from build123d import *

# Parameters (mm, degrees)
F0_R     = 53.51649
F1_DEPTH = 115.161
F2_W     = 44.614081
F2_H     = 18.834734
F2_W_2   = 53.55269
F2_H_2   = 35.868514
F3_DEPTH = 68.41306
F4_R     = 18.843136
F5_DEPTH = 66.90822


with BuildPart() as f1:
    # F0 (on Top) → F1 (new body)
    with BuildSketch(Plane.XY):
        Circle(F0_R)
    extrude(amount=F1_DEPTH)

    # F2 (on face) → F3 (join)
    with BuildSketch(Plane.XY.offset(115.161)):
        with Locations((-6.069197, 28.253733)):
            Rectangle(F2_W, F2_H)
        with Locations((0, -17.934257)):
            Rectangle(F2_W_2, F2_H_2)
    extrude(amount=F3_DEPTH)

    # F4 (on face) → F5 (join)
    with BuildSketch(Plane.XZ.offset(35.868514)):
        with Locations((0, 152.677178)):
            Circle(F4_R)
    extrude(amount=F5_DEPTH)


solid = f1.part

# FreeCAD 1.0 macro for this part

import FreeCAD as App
import Part
import Sketcher

V = App.Vector
Q = App.Units.Quantity


def add_polygon(sketch, points):
    """Adds a closed chain of lines whose ends are joined by coincident constraints."""
    first, n = sketch.GeometryCount, len(points)
    for a, b in zip(points, points[1:] + points[:1]):
        sketch.addGeometry(Part.LineSegment(App.Vector(*a, 0), App.Vector(*b, 0)), False)
    for i in range(n):
        sketch.addConstraint(Sketcher.Constraint("Coincident", first + i, 2, first + (i + 1) % n, 1))

doc = App.newDocument("Part")
body = doc.addObject("PartDesign::Body", "Body")

# Sketch on XY plane
sketch1 = body.newObject("Sketcher::SketchObject", "Sketch")
sketch1.AttachmentSupport = (doc.getObject("XY_Plane"), [""])
sketch1.MapMode = "FlatFace"
sketch1.addGeometry(Part.Circle(V(0, 0, 0), V(0, 0, 1), 54), False)
sketch1.addConstraint(Sketcher.Constraint("Coincident", 0, 3, -1, 1))
sketch1.addConstraint(Sketcher.Constraint("Diameter", 0, Q("107.03298 mm")))
pad1 = body.newObject("PartDesign::Pad", "Pad")
pad1.Profile = sketch1
pad1.Length = 115.161

# Sketch on XY plane
sketch2 = body.newObject("Sketcher::SketchObject", "Sketch001")
sketch2.AttachmentSupport = (doc.getObject("XY_Plane"), [""])
sketch2.MapMode = "FlatFace"
sketch2.AttachmentOffset = App.Placement(V(0, 0, 115.161), App.Rotation())
add_polygon(sketch2, [(-28, 38), (-28, 19), (16, 19), (16, 38)])  # lines 0-3
add_polygon(sketch2, [(-27, 0), (-27, -36), (27, -36), (27, 0)])  # lines 4-7
sketch2.addConstraint(Sketcher.Constraint("Vertical", 0))
sketch2.addConstraint(Sketcher.Constraint("Horizontal", 1))
sketch2.addConstraint(Sketcher.Constraint("Vertical", 2))
sketch2.addConstraint(Sketcher.Constraint("Horizontal", 3))
sketch2.addConstraint(Sketcher.Constraint("Vertical", 4))
sketch2.addConstraint(Sketcher.Constraint("Horizontal", 5))
sketch2.addConstraint(Sketcher.Constraint("Vertical", 6))
sketch2.addConstraint(Sketcher.Constraint("Horizontal", 7))
sketch2.addConstraint(Sketcher.Constraint("Symmetric", 6, 2, 7, 2, -1, 1))
sketch2.addConstraint(Sketcher.Constraint("DistanceX", 1, 1, 1, 2, Q("44.614081 mm")))
sketch2.addConstraint(Sketcher.Constraint("DistanceX", 5, 1, 5, 2, Q("53.55269 mm")))
sketch2.addConstraint(Sketcher.Constraint("DistanceY", -1, 1, 2, 2, Q("37.6711 mm")))
sketch2.addConstraint(Sketcher.Constraint("DistanceX", 1, 2, 5, 2, Q("10.538501 mm")))
sketch2.addConstraint(Sketcher.Constraint("DistanceY", 0, 2, 0, 1, Q("18.834734 mm")))
sketch2.addConstraint(Sketcher.Constraint("DistanceY", 4, 2, 4, 1, Q("35.868514 mm")))
pad2 = body.newObject("PartDesign::Pad", "Pad001")
pad2.Profile = sketch2
pad2.Length = 68.41306

# Sketch on XZ plane
sketch3 = body.newObject("Sketcher::SketchObject", "Sketch002")
sketch3.AttachmentSupport = (doc.getObject("XZ_Plane"), [""])
sketch3.MapMode = "FlatFace"
sketch3.AttachmentOffset = App.Placement(V(0, 0, 35.868514), App.Rotation())
sketch3.addGeometry(Part.Circle(V(0, 153, 0), V(0, 0, 1), 19), False)
sketch3.addConstraint(Sketcher.Constraint("PointOnObject", 0, 3, -2))
sketch3.addConstraint(Sketcher.Constraint("Diameter", 0, Q("37.686272 mm")))
sketch3.addConstraint(Sketcher.Constraint("DistanceY", -1, 1, 0, 3, Q("152.677178 mm")))
pad3 = body.newObject("PartDesign::Pad", "Pad002")
pad3.Profile = sketch3
pad3.Length = 66.90822

doc.recompute()
